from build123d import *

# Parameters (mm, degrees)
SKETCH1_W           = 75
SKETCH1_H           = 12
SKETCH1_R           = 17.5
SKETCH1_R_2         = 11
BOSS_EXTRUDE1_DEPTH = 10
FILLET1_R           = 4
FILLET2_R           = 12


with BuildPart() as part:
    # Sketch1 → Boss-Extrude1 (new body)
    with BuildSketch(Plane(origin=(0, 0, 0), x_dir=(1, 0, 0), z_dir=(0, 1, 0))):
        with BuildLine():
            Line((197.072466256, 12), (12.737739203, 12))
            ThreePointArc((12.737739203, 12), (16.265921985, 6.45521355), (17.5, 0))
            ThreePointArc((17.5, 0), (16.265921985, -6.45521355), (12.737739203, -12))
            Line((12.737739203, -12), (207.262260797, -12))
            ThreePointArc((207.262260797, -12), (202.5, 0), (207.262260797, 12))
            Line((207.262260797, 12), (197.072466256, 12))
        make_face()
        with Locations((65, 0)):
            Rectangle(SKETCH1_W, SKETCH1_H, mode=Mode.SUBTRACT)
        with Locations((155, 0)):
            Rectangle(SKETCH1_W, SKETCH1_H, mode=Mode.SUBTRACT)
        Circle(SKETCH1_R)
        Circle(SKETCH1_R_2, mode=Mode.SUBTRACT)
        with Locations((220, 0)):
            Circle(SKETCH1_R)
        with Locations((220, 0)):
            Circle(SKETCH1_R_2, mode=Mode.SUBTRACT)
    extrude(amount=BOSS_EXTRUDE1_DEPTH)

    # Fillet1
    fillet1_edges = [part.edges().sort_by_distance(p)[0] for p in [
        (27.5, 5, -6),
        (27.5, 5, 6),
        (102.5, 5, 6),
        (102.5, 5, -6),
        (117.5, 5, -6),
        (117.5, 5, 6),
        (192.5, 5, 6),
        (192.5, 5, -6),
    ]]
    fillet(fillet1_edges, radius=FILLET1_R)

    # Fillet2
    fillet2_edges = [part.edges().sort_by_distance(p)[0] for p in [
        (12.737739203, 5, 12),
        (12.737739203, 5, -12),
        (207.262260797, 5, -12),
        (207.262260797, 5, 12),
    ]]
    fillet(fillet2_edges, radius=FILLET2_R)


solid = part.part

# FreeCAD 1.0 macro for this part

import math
import FreeCAD as App
import Part
import Sketcher

V = App.Vector


def edges_at(feature, points):
    """Names of the edges that pass closest to the given points."""
    edges = feature.Shape.Edges
    near = lambda p: min(range(len(edges)), key=lambda i: edges[i].distToShape(Part.Vertex(*p))[0])
    return sorted({f"Edge{near(p) + 1}" for p in points})


def add_polygon(sketch, points):
    """Adds a closed chain of lines whose ends are joined by coincident constraints."""
    first, n = sketch.GeometryCount, len(points)
    for a, b in zip(points, points[1:] + points[:1]):
        sketch.addGeometry(Part.LineSegment(App.Vector(*a, 0), App.Vector(*b, 0)), False)
    for i in range(n):
        sketch.addConstraint(Sketcher.Constraint("Coincident", first + i, 2, first + (i + 1) % n, 1))

doc = App.newDocument("Part")
body = doc.addObject("PartDesign::Body", "Body")

# Sketch on XZ plane
sketch1 = doc.addObject("Sketcher::SketchObject", "Sketch")
body.addObject(sketch1)
sketch1.AttachmentSupport = (doc.XZ_Plane, [""])
sketch1.MapMode = "FlatFace"
sketch1.addGeometry(Part.LineSegment(V(207.262261, -12, 0), V(12.737739, -12, 0)), False)  # 0
sketch1.addGeometry(Part.ArcOfCircle(Part.Circle(V(0, 0, 0), V(0, 0, 1), 17.5), math.radians(43.291808), math.radians(316.708192)), False)  # 1
sketch1.addGeometry(Part.LineSegment(V(12.737739, 12, 0), V(207.262261, 12, 0)), False)  # 2
sketch1.addGeometry(Part.ArcOfCircle(Part.Circle(V(220, 0, 0), V(0, 0, 1), 17.5), math.radians(-136.708192), math.radians(136.708192)), False)  # 3
sketch1.addGeometry(Part.Circle(V(0, 0, 0), V(0, 0, 1), 11), False)  # 4
add_polygon(sketch1, [(102.5, 6), (27.5, 6), (27.5, -6), (102.5, -6)])  # lines 5-8
add_polygon(sketch1, [(192.5, 6), (117.5, 6), (117.5, -6), (192.5, -6)])  # lines 9-12
sketch1.addGeometry(Part.Circle(V(220, 0, 0), V(0, 0, 1), 11), False)  # 13
sketch1.addConstraint([
    Sketcher.Constraint("Coincident", 0, 2, 1, 2),
    Sketcher.Constraint("Coincident", 1, 1, 2, 1),
    Sketcher.Constraint("Coincident", 2, 2, 3, 2),
    Sketcher.Constraint("Coincident", 3, 1, 0, 1),
    Sketcher.Constraint("Horizontal", 0),
    Sketcher.Constraint("Horizontal", 2),
    Sketcher.Constraint("Horizontal", 5),
    Sketcher.Constraint("Vertical", 6),
    Sketcher.Constraint("Horizontal", 7),
    Sketcher.Constraint("Vertical", 8),
    Sketcher.Constraint("Horizontal", 9),
    Sketcher.Constraint("Vertical", 10),
    Sketcher.Constraint("Horizontal", 11),
    Sketcher.Constraint("Vertical", 12),
    Sketcher.Constraint("Coincident", 1, 3, -1, 1),
    Sketcher.Constraint("Coincident", 4, 3, -1, 1),
    Sketcher.Constraint("Coincident", 13, 3, 3, 3),
    Sketcher.Constraint("Equal", 1, 3),
    Sketcher.Constraint("Equal", 4, 13),
    Sketcher.Constraint("Symmetric", 2, 2, 3, 1, -1),
    Sketcher.Constraint("Horizontal", 8, 2, 9, 2),
    Sketcher.Constraint("Horizontal", 7, 2, 10, 2),
    Sketcher.Constraint("Equal", 7, 9),
    Sketcher.Constraint("Diameter", 4, 22.0),
    Sketcher.Constraint("Radius", 1, 17.5),
    Sketcher.Constraint("DistanceX", 5, 2, 5, 1, 75.0),
    Sketcher.Constraint("DistanceY", 6, 2, 6, 1, 12.0),
    Sketcher.Constraint("DistanceX", -1, 1, 3, 3, 220.0),
    Sketcher.Constraint("DistanceY", 0, 2, -1, 1, 12.0),
    Sketcher.Constraint("DistanceY", -1, 1, 5, 2, 6.0),
    Sketcher.Constraint("DistanceX", 8, 2, 9, 2, 15.0),
    Sketcher.Constraint("DistanceX", -1, 1, 5, 2, 27.5),
])
pad1 = doc.addObject("PartDesign::Pad", "Pad")
body.addObject(pad1)
pad1.Profile = sketch1
pad1.Length = 10
pad1.Reversed = True
doc.recompute()

fillet = doc.addObject("PartDesign::Fillet", "Fillet")
body.addObject(fillet)
fillet.Base = (pad1, edges_at(pad1, [
    (27.5, 5, -6),
    (27.5, 5, 6),
    (102.5, 5, 6),
    (102.5, 5, -6),
    (117.5, 5, -6),
    (117.5, 5, 6),
    (192.5, 5, 6),
    (192.5, 5, -6),
]))
fillet.Radius = 4
doc.recompute()

fillet2 = doc.addObject("PartDesign::Fillet", "Fillet001")
body.addObject(fillet2)
fillet2.Base = (fillet, edges_at(fillet, [
    (12.738, 5, 12),
    (12.738, 5, -12),
    (207.262, 5, -12),
    (207.262, 5, 12),
]))
fillet2.Radius = 12

doc.recompute()
